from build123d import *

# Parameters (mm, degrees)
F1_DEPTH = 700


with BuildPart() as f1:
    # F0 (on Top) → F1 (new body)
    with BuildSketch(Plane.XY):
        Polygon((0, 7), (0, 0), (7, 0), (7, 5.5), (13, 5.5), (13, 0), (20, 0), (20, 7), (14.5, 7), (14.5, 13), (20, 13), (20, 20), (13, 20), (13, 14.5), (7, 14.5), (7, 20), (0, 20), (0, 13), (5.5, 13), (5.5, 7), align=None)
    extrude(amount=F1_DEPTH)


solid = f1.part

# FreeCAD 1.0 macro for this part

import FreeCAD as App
import Part
import Sketcher
Q = App.Units.Quantity


def add_polygon(sketch, points):
    """Adds a closed chain of lines whose ends are joined by coincident constraints."""
    first, n = sketch.GeometryCount, len(points)
    for a, b in zip(points, points[1:] + points[:1]):
        sketch.addGeometry(Part.LineSegment(App.Vector(*a, 0), App.Vector(*b, 0)), False)
    for i in range(n):
        sketch.addConstraint(Sketcher.Constraint("Coincident", first + i, 2, first + (i + 1) % n, 1))

doc = App.newDocument("Part")
body = doc.addObject("PartDesign::Body", "Body")

# Sketch on XY plane
sketch1 = body.newObject("Sketcher::SketchObject", "Sketch")
sketch1.AttachmentSupport = (doc.getObject("XY_Plane"), [""])
sketch1.MapMode = "FlatFace"
add_polygon(sketch1, [(0, 7), (0, 0), (7, 0), (7, 6), (13, 6), (13, 0), (20, 0), (20, 7), (14, 7), (14, 13), (20, 13), (20, 20), (13, 20), (13, 14), (7, 14), (7, 20), (0, 20), (0, 13), (6, 13), (6, 7)])  # lines 0-19
sketch1.addConstraint([
    Sketcher.Constraint("Vertical", 0),
    Sketcher.Constraint("Horizontal", 1),
    Sketcher.Constraint("Vertical", 2),
    Sketcher.Constraint("Horizontal", 3),
    Sketcher.Constraint("Vertical", 4),
    Sketcher.Constraint("Horizontal", 5),
    Sketcher.Constraint("Vertical", 6),
    Sketcher.Constraint("Horizontal", 7),
    Sketcher.Constraint("Vertical", 8),
    Sketcher.Constraint("Horizontal", 9),
    Sketcher.Constraint("Vertical", 10),
    Sketcher.Constraint("Horizontal", 11),
    Sketcher.Constraint("Vertical", 12),
    Sketcher.Constraint("Horizontal", 13),
    Sketcher.Constraint("Vertical", 14),
    Sketcher.Constraint("Horizontal", 15),
    Sketcher.Constraint("Vertical", 16),
    Sketcher.Constraint("Horizontal", 17),
    Sketcher.Constraint("Vertical", 18),
    Sketcher.Constraint("Horizontal", 19),
    Sketcher.Constraint("Coincident", 0, 2, -1, 1),
    Sketcher.Constraint("PointOnObject", 4, 2, -1),
    Sketcher.Constraint("PointOnObject", 15, 2, -2),
    Sketcher.Constraint("Horizontal", 11, 2, 14, 2),
    Sketcher.Constraint("Horizontal", 9, 2, 16, 2),
    Sketcher.Constraint("Horizontal", 7, 2, 18, 2),
    Sketcher.Constraint("Vertical", 6, 2, 9, 2),
    Sketcher.Constraint("Vertical", 4, 2, 11, 2),
    Sketcher.Constraint("Vertical", 2, 2, 13, 2),
    Sketcher.Constraint("Equal", 1, 5),
    Sketcher.Constraint("Equal", 9, 17),
    Sketcher.Constraint("Equal", 15, 0),
    Sketcher.Constraint("Equal", 19, 2),
    Sketcher.Constraint("Equal", 13, 8),
    Sketcher.Constraint("Equal", 6, 10),
    Sketcher.Constraint("Equal", 4, 12),
    Sketcher.Constraint("DistanceX", 1, 1, 1, 2, Q("7 mm")),
    Sketcher.Constraint("DistanceX", 3, 1, 3, 2, Q("6 mm")),
    Sketcher.Constraint("DistanceX", 7, 2, 7, 1, Q("5.5 mm")),
])
pad1 = body.newObject("PartDesign::Pad", "Pad")
pad1.Profile = sketch1
pad1.Length = 700

doc.recompute()
